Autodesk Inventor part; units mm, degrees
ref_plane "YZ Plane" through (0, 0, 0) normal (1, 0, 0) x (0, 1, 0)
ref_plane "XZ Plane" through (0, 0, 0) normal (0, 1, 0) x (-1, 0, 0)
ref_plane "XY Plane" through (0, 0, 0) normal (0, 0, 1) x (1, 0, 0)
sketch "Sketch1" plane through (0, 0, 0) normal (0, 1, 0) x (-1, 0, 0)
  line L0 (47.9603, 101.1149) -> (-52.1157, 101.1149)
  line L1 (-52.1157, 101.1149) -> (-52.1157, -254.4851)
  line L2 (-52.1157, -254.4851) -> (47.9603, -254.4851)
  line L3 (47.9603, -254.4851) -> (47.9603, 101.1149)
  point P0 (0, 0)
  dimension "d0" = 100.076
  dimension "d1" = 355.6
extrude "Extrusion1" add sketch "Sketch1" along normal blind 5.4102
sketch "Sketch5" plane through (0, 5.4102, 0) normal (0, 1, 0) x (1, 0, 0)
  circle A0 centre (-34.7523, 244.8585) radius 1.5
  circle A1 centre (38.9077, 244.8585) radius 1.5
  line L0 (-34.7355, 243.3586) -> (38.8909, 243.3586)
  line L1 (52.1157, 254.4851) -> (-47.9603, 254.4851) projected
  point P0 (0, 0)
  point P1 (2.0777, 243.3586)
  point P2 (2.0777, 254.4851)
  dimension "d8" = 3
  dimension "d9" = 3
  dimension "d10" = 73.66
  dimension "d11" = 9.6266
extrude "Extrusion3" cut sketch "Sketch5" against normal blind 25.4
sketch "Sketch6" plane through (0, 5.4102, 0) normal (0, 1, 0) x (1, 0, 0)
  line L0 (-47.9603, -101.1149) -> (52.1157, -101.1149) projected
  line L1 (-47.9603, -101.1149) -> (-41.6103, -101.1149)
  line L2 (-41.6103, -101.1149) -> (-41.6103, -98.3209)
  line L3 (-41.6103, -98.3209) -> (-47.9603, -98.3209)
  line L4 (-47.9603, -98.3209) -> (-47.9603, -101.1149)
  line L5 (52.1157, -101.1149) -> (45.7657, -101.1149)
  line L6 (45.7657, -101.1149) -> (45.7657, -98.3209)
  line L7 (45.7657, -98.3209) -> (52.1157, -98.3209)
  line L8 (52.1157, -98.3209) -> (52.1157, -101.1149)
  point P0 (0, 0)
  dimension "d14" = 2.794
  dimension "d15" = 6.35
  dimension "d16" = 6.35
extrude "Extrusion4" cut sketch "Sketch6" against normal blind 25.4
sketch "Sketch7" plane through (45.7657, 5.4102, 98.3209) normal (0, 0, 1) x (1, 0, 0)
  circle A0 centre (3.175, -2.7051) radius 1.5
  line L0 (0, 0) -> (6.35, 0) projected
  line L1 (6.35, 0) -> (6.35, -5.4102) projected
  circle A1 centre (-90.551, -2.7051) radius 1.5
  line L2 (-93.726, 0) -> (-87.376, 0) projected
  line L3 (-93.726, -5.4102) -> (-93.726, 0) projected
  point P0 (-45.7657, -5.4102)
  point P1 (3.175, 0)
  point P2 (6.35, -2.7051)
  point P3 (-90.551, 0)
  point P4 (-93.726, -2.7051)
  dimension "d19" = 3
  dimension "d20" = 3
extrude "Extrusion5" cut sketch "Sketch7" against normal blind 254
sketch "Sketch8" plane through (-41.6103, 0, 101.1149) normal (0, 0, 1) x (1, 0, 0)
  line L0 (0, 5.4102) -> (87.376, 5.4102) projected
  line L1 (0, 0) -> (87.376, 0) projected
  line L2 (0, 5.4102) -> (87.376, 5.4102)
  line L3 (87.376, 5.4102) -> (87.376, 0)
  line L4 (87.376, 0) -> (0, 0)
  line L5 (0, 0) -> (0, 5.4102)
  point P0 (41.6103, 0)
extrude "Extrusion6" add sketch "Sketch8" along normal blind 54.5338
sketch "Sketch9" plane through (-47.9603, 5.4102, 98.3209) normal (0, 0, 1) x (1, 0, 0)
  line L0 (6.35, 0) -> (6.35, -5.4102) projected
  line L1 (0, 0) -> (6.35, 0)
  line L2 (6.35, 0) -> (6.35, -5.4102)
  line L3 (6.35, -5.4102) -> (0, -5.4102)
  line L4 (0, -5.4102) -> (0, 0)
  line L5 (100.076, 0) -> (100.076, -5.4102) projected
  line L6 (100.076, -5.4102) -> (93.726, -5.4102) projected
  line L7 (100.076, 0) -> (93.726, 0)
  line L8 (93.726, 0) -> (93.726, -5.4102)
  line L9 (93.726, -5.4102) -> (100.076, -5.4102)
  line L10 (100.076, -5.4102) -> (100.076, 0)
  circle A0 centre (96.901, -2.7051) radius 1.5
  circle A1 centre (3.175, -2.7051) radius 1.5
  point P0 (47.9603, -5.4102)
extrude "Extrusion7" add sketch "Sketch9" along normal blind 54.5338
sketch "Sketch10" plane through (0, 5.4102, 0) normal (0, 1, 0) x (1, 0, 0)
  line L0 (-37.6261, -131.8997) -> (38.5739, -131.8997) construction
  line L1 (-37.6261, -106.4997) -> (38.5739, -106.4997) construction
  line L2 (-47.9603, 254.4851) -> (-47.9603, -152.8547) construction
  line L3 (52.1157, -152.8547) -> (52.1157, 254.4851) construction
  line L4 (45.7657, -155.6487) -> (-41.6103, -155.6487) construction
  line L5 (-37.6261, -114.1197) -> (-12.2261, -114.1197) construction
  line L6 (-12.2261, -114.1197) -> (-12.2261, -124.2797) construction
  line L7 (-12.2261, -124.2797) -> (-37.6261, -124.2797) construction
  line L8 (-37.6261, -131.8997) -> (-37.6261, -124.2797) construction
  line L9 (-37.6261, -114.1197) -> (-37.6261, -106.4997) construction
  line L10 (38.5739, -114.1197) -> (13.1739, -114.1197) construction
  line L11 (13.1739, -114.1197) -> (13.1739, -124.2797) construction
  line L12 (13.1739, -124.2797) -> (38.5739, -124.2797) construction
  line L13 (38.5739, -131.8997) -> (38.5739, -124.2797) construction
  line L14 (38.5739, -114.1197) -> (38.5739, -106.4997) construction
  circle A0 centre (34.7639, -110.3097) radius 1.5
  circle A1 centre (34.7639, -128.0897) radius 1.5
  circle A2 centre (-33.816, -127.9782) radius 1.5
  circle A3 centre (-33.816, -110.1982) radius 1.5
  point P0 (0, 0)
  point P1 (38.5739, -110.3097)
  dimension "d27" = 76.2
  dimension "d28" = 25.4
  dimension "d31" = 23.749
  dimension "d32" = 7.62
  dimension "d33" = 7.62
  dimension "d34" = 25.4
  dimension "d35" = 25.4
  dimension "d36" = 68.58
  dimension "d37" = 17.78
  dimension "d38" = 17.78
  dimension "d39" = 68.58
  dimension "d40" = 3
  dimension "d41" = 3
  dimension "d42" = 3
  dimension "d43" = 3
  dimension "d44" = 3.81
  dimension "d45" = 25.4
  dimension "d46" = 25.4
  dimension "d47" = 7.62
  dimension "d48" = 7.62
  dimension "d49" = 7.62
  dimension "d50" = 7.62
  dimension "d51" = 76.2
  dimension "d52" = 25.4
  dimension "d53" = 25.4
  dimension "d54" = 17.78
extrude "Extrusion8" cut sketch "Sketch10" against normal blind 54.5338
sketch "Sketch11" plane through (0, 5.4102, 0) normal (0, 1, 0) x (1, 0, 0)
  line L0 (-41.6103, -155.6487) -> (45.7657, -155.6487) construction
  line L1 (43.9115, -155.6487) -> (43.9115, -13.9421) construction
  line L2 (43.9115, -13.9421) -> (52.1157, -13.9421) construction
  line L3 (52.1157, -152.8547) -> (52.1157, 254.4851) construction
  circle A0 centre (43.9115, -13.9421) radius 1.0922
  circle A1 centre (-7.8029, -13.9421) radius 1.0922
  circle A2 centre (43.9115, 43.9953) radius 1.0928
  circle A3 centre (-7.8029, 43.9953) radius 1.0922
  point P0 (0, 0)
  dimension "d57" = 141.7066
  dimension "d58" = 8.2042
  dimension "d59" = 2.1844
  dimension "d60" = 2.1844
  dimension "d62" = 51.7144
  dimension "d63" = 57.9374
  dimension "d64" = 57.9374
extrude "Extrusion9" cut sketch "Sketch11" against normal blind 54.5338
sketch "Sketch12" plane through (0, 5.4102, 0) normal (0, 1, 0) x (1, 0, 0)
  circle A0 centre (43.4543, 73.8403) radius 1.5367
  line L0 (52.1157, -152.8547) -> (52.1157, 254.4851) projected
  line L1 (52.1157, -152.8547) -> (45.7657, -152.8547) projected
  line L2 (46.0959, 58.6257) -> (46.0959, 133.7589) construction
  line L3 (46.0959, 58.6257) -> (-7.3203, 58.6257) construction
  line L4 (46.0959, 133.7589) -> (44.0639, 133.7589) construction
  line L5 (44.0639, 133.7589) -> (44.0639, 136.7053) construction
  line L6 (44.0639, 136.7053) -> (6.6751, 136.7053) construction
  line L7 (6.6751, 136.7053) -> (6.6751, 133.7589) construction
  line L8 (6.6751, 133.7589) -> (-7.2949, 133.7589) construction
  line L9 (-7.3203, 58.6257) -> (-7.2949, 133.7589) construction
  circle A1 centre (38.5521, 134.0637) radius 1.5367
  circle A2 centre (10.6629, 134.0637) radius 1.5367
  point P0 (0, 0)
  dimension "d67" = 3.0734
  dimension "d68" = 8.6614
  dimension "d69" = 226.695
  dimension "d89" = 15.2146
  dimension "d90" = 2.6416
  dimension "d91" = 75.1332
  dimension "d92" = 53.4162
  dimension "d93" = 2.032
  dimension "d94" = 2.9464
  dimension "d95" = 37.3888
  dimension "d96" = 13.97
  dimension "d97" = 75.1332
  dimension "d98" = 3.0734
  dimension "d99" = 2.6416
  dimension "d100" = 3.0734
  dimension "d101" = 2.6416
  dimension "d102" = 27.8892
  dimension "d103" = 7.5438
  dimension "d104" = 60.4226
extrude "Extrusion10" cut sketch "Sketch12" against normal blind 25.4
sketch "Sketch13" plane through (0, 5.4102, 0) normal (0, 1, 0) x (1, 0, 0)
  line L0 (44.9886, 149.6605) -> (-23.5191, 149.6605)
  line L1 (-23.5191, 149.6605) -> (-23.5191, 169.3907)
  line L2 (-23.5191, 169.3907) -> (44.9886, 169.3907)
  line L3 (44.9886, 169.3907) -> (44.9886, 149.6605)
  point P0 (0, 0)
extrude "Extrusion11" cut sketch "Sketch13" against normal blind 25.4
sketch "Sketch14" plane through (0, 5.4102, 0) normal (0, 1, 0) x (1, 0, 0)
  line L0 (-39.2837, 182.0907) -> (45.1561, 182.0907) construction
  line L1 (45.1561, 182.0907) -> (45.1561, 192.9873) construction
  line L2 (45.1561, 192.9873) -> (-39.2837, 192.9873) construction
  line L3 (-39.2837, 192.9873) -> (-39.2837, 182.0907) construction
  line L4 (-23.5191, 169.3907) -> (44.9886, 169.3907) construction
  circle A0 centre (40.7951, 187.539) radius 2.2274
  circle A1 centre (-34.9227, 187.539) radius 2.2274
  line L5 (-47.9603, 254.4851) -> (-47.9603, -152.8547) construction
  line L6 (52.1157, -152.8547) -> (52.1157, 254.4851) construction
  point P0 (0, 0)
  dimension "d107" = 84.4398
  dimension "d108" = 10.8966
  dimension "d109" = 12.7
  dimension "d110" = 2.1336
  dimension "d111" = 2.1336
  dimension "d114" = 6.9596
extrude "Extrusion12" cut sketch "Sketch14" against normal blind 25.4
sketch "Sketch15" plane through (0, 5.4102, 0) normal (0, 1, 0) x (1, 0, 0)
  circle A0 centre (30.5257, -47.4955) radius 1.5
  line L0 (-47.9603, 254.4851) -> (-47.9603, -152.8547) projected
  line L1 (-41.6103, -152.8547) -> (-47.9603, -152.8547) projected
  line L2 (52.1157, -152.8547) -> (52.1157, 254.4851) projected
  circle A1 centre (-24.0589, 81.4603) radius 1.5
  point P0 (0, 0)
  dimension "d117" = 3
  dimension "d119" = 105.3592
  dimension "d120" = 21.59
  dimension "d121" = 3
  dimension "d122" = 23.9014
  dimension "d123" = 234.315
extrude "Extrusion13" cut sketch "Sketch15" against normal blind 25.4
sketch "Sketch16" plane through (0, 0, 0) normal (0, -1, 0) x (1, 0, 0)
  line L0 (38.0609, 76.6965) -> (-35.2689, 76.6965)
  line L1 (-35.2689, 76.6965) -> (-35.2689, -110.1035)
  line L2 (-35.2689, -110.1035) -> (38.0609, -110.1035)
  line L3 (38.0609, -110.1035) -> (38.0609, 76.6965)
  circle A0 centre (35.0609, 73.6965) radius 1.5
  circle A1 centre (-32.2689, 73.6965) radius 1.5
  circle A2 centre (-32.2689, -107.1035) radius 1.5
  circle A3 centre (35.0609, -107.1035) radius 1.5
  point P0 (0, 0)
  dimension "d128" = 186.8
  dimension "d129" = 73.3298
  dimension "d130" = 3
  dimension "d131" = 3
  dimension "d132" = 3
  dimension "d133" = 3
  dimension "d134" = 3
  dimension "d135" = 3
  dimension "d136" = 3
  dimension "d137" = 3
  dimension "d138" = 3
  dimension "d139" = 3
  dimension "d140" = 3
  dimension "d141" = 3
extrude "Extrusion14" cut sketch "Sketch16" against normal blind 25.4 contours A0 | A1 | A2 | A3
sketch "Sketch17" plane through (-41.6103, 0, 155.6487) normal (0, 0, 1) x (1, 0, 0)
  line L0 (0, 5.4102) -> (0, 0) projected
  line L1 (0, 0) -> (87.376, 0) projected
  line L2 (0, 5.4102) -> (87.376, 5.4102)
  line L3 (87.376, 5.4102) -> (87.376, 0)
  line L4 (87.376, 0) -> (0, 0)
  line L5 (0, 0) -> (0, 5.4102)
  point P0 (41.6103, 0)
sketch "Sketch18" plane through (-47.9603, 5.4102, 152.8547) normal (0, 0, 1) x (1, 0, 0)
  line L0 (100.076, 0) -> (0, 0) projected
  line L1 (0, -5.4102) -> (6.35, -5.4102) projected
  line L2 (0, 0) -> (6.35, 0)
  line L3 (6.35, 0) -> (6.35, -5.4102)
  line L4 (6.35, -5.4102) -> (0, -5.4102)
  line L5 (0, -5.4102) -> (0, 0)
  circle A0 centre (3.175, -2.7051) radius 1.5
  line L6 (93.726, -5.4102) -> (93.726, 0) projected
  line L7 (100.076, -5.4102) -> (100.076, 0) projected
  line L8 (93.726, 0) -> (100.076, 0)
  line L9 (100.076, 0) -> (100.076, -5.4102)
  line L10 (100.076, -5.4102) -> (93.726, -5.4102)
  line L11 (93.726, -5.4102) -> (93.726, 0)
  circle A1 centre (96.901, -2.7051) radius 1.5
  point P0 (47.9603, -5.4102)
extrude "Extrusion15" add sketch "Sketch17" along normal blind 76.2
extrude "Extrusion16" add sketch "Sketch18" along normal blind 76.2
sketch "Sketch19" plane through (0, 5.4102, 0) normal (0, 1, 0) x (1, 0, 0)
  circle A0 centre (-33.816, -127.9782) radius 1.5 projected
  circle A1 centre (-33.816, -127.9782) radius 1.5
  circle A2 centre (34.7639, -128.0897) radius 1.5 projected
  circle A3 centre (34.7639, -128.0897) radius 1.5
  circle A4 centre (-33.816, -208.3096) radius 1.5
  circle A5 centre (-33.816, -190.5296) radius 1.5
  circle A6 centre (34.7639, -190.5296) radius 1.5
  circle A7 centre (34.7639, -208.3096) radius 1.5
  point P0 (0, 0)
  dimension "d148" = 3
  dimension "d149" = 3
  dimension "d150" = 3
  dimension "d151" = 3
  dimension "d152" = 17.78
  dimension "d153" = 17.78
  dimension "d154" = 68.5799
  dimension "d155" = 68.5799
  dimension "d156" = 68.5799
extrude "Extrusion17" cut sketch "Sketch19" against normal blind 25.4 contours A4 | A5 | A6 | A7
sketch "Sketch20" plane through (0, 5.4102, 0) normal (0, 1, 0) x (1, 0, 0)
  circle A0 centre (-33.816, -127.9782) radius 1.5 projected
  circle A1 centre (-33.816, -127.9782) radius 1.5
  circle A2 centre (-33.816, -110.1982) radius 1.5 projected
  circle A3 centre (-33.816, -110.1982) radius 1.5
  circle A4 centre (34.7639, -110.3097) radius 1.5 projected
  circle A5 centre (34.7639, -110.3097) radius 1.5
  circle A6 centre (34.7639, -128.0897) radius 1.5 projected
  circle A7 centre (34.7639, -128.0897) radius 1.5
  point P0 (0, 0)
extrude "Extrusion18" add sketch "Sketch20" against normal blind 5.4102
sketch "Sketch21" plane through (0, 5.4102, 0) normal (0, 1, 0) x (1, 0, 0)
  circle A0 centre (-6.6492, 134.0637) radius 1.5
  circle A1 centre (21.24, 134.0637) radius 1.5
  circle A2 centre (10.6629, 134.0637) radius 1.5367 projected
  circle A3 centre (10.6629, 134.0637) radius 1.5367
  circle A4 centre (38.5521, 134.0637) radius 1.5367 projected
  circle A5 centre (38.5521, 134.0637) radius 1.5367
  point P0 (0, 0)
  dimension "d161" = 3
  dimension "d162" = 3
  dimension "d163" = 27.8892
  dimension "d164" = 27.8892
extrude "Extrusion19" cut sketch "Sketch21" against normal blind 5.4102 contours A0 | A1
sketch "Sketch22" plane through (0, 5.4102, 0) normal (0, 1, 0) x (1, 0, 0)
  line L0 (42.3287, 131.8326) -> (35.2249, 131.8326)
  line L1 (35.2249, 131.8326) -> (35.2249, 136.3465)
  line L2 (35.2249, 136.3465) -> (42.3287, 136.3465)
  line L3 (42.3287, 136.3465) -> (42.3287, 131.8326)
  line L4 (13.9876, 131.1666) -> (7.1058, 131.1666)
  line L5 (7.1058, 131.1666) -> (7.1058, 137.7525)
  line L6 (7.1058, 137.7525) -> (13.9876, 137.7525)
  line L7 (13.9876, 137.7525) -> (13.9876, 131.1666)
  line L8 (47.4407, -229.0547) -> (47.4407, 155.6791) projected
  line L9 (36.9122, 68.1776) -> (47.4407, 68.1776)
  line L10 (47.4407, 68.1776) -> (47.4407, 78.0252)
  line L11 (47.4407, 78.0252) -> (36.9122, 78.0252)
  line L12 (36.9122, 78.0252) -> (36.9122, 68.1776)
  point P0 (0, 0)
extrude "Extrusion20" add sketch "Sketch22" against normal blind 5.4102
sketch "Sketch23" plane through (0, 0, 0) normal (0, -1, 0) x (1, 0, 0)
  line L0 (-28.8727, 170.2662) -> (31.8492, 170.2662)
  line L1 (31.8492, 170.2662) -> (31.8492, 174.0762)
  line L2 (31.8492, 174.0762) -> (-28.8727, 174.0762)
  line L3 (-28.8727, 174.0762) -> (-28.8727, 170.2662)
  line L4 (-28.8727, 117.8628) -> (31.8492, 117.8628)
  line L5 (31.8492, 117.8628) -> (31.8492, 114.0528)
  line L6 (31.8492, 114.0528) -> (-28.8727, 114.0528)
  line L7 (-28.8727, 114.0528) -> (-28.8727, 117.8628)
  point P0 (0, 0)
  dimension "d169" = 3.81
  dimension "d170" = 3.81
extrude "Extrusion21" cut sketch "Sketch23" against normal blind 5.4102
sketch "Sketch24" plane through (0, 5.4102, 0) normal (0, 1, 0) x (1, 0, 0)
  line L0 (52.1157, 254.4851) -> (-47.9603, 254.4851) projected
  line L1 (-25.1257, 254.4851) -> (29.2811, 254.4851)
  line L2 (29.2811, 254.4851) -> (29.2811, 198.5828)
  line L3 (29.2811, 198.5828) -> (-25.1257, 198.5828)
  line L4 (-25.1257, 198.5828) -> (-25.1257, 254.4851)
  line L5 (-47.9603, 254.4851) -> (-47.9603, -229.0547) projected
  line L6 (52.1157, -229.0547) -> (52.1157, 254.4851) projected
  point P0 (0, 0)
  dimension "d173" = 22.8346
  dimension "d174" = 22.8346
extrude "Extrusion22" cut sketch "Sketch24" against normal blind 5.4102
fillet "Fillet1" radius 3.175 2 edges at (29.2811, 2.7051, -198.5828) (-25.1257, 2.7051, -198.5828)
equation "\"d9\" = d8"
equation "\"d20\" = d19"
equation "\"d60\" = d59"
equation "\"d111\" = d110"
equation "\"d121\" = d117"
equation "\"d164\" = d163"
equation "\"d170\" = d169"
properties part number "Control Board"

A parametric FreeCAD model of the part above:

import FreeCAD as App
import Part
import Sketcher

V = App.Vector
Q = App.Units.Quantity


def edges_at(feature, points):
    """Names of the edges that pass closest to the given points."""
    edges = feature.Shape.Edges
    near = lambda p: min(range(len(edges)), key=lambda i: edges[i].distToShape(Part.Vertex(*p))[0])
    return sorted({f"Edge{near(p) + 1}" for p in points})

doc = App.newDocument("Part")
body = doc.addObject("PartDesign::Body", "Body")

# Sketch on XZ plane
sketch1 = body.newObject("Sketcher::SketchObject", "Sketch")
sketch1.AttachmentSupport = (doc.getObject("XZ_Plane"), [""])
sketch1.MapMode = "FlatFace"
sketch1.addGeometry(Part.LineSegment(V(-48, -254, 0), V(-48, 101, 0)), False)
sketch1.addGeometry(Part.LineSegment(V(-48, 101, 0), V(52, 101, 0)), False)
sketch1.addGeometry(Part.LineSegment(V(52, 101, 0), V(52, -254, 0)), False)
sketch1.addGeometry(Part.LineSegment(V(52, -254, 0), V(-48, -254, 0)), False)
sketch1.addConstraint(Sketcher.Constraint("Coincident", 0, 2, 1, 1))
sketch1.addConstraint(Sketcher.Constraint("Coincident", 1, 2, 2, 1))
sketch1.addConstraint(Sketcher.Constraint("Coincident", 2, 2, 3, 1))
sketch1.addConstraint(Sketcher.Constraint("Coincident", 3, 2, 0, 1))
sketch1.addConstraint(Sketcher.Constraint("Vertical", 0))
sketch1.addConstraint(Sketcher.Constraint("Horizontal", 1))
sketch1.addConstraint(Sketcher.Constraint("Vertical", 2))
sketch1.addConstraint(Sketcher.Constraint("Horizontal", 3))
sketch1.addConstraint(Sketcher.Constraint("DistanceY", 0, 1, 0, 2, Q("14 in")))
sketch1.addConstraint(Sketcher.Constraint("DistanceX", 1, 1, 1, 2, Q("3.94 in")))
sketch1.addConstraint(Sketcher.Constraint("DistanceX", 0, 2, -1, 1, Q("1.8882 in")))
sketch1.addConstraint(Sketcher.Constraint("DistanceY", -1, 1, 0, 2, Q("3.9809 in")))
pad1 = body.newObject("PartDesign::Pad", "Pad")
pad1.Profile = sketch1
pad1.Length = Q("0.213 in")
pad1.Reversed = True

# Sketch on XZ plane
sketch2 = body.newObject("Sketcher::SketchObject", "Sketch001")
sketch2.AttachmentSupport = (doc.getObject("XZ_Plane"), [""])
sketch2.MapMode = "FlatFace"
sketch2.AttachmentOffset = App.Placement(V(0, 0, -0.213 * 25.4), App.Rotation())
sketch2.addGeometry(Part.Circle(V(-34.8, -244.9, 0), V(0, 0, 1), 1.5), False)
sketch2.addGeometry(Part.Circle(V(38.9, -244.9, 0), V(0, 0, 1), 1.5), False)
sketch2.addConstraint(Sketcher.Constraint("Equal", 0, 1))
sketch2.addConstraint(Sketcher.Constraint("Horizontal", 0, 3, 1, 3))
sketch2.addConstraint(Sketcher.Constraint("Diameter", 0, Q("0.1181 in")))
sketch2.addConstraint(Sketcher.Constraint("DistanceX", 0, 3, 1, 3, Q("2.9 in")))
sketch2.addConstraint(Sketcher.Constraint("DistanceX", 0, 3, -1, 1, Q("1.3682 in")))
sketch2.addConstraint(Sketcher.Constraint("DistanceY", 0, 3, -1, 1, Q("9.6401 in")))
pocket1 = body.newObject("PartDesign::Pocket", "Pocket")
pocket1.Profile = sketch2
pocket1.Length = Q("1 in")
pocket1.Reversed = True

# Sketch on XZ plane
sketch3 = body.newObject("Sketcher::SketchObject", "Sketch002")
sketch3.AttachmentSupport = (doc.getObject("XZ_Plane"), [""])
sketch3.MapMode = "FlatFace"
sketch3.AttachmentOffset = App.Placement(V(0, 0, -0.213 * 25.4), App.Rotation())
sketch3.addGeometry(Part.LineSegment(V(-48, 98.3, 0), V(-48, 101.1, 0)), False)
sketch3.addGeometry(Part.LineSegment(V(-48, 101.1, 0), V(-41.6, 101.1, 0)), False)
sketch3.addGeometry(Part.LineSegment(V(-41.6, 101.1, 0), V(-41.6, 98.3, 0)), False)
sketch3.addGeometry(Part.LineSegment(V(-41.6, 98.3, 0), V(-48, 98.3, 0)), False)
sketch3.addGeometry(Part.LineSegment(V(45.8, 98.3, 0), V(45.8, 101.1, 0)), False)
sketch3.addGeometry(Part.LineSegment(V(45.8, 101.1, 0), V(52.1, 101.1, 0)), False)
sketch3.addGeometry(Part.LineSegment(V(52.1, 101.1, 0), V(52.1, 98.3, 0)), False)
sketch3.addGeometry(Part.LineSegment(V(52.1, 98.3, 0), V(45.8, 98.3, 0)), False)
sketch3.addConstraint(Sketcher.Constraint("Coincident", 0, 2, 1, 1))
sketch3.addConstraint(Sketcher.Constraint("Coincident", 1, 2, 2, 1))
sketch3.addConstraint(Sketcher.Constraint("Coincident", 2, 2, 3, 1))
sketch3.addConstraint(Sketcher.Constraint("Coincident", 3, 2, 0, 1))
sketch3.addConstraint(Sketcher.Constraint("Coincident", 4, 2, 5, 1))
sketch3.addConstraint(Sketcher.Constraint("Coincident", 5, 2, 6, 1))
sketch3.addConstraint(Sketcher.Constraint("Coincident", 6, 2, 7, 1))
sketch3.addConstraint(Sketcher.Constraint("Coincident", 7, 2, 4, 1))
sketch3.addConstraint(Sketcher.Constraint("Vertical", 0))
sketch3.addConstraint(Sketcher.Constraint("Horizontal", 1))
sketch3.addConstraint(Sketcher.Constraint("Vertical", 2))
sketch3.addConstraint(Sketcher.Constraint("Horizontal", 3))
sketch3.addConstraint(Sketcher.Constraint("Vertical", 4))
sketch3.addConstraint(Sketcher.Constraint("Horizontal", 5))
sketch3.addConstraint(Sketcher.Constraint("Vertical", 6))
sketch3.addConstraint(Sketcher.Constraint("Horizontal", 7))
sketch3.addConstraint(Sketcher.Constraint("Horizontal", 1, 2, 4, 2))
sketch3.addConstraint(Sketcher.Constraint("Horizontal", 3, 2, 6, 2))
sketch3.addConstraint(Sketcher.Constraint("Equal", 3, 5))
sketch3.addConstraint(Sketcher.Constraint("DistanceX", 1, 1, 1, 2, Q("0.25 in")))
sketch3.addConstraint(Sketcher.Constraint("DistanceY", 0, 1, 0, 2, Q("0.11 in")))
sketch3.addConstraint(Sketcher.Constraint("DistanceX", 1, 2, 4, 2, Q("3.44 in")))
sketch3.addConstraint(Sketcher.Constraint("DistanceX", 0, 2, -1, 1, Q("1.8882 in")))
sketch3.addConstraint(Sketcher.Constraint("DistanceY", -1, 1, 0, 2, Q("3.9809 in")))
pocket2 = body.newObject("PartDesign::Pocket", "Pocket001")
pocket2.Profile = sketch3
pocket2.Length = Q("1 in")
pocket2.Reversed = True

# Sketch on XY plane
sketch4 = body.newObject("Sketcher::SketchObject", "Sketch003")
sketch4.AttachmentSupport = (doc.getObject("XY_Plane"), [""])
sketch4.MapMode = "FlatFace"
sketch4.AttachmentOffset = App.Placement(V(0, 0, 3.8709016 * 25.4), App.Rotation())
sketch4.addGeometry(Part.Circle(V(48.9, 2.7, 0), V(0, 0, 1), 1.5), False)
sketch4.addGeometry(Part.Circle(V(-44.8, 2.7, 0), V(0, 0, 1), 1.5), False)
sketch4.addConstraint(Sketcher.Constraint("Equal", 0, 1))
sketch4.addConstraint(Sketcher.Constraint("Horizontal", 0, 3, 1, 3))
sketch4.addConstraint(Sketcher.Constraint("Diameter", 0, Q("0.1181 in")))
sketch4.addConstraint(Sketcher.Constraint("DistanceX", 1, 3, 0, 3, Q("3.69 in")))
sketch4.addConstraint(Sketcher.Constraint("DistanceX", -1, 1, 0, 3, Q("1.9268 in")))
sketch4.addConstraint(Sketcher.Constraint("DistanceY", -1, 1, 0, 3, Q("0.1065 in")))
pocket3 = body.newObject("PartDesign::Pocket", "Pocket002")
pocket3.Profile = sketch4
pocket3.Length = Q("10 in")

# Sketch on XY plane
sketch5 = body.newObject("Sketcher::SketchObject", "Sketch004")
sketch5.AttachmentSupport = (doc.getObject("XY_Plane"), [""])
sketch5.MapMode = "FlatFace"
sketch5.AttachmentOffset = App.Placement(V(0, 0, 3.9809016 * 25.4), App.Rotation())
sketch5.addGeometry(Part.LineSegment(V(46, 5, 0), V(-42, 5, 0)), False)
sketch5.addGeometry(Part.LineSegment(V(-42, 5, 0), V(-42, 0, 0)), False)
sketch5.addGeometry(Part.LineSegment(V(-42, 0, 0), V(46, 0, 0)), False)
sketch5.addGeometry(Part.LineSegment(V(46, 0, 0), V(46, 5, 0)), False)
sketch5.addConstraint(Sketcher.Constraint("Coincident", 0, 2, 1, 1))
sketch5.addConstraint(Sketcher.Constraint("Coincident", 1, 2, 2, 1))
sketch5.addConstraint(Sketcher.Constraint("Coincident", 2, 2, 3, 1))
sketch5.addConstraint(Sketcher.Constraint("Coincident", 3, 2, 0, 1))
sketch5.addConstraint(Sketcher.Constraint("Horizontal", 0))
sketch5.addConstraint(Sketcher.Constraint("Vertical", 1))
sketch5.addConstraint(Sketcher.Constraint("Horizontal", 2))
sketch5.addConstraint(Sketcher.Constraint("Vertical", 3))
sketch5.addConstraint(Sketcher.Constraint("PointOnObject", 1, 2, -1))
sketch5.addConstraint(Sketcher.Constraint("DistanceX", 0, 2, 0, 1, Q("3.44 in")))
sketch5.addConstraint(Sketcher.Constraint("DistanceY", 1, 2, 1, 1, Q("0.213 in")))
sketch5.addConstraint(Sketcher.Constraint("DistanceX", 0, 2, -1, 1, Q("1.6382 in")))
pad2 = body.newObject("PartDesign::Pad", "Pad001")
pad2.Profile = sketch5
pad2.Length = Q("2.147 in")

# Sketch on XY plane
sketch6 = body.newObject("Sketcher::SketchObject", "Sketch005")
sketch6.AttachmentSupport = (doc.getObject("XY_Plane"), [""])
sketch6.MapMode = "FlatFace"
sketch6.AttachmentOffset = App.Placement(V(0, 0, 3.8709016 * 25.4), App.Rotation())
sketch6.addGeometry(Part.LineSegment(V(-41.6, 0, 0), V(-41.6, 5.4, 0)), False)
sketch6.addGeometry(Part.LineSegment(V(-41.6, 5.4, 0), V(-48, 5.4, 0)), False)
sketch6.addGeometry(Part.LineSegment(V(-48, 5.4, 0), V(-48, 0, 0)), False)
sketch6.addGeometry(Part.LineSegment(V(-48, 0, 0), V(-41.6, 0, 0)), False)
sketch6.addGeometry(Part.Circle(V(-44.8, 2.7, 0), V(0, 0, 1), 1.5), False)
sketch6.addGeometry(Part.LineSegment(V(52.1, 0, 0), V(52.1, 5.4, 0)), False)
sketch6.addGeometry(Part.LineSegment(V(52.1, 5.4, 0), V(45.8, 5.4, 0)), False)
sketch6.addGeometry(Part.LineSegment(V(45.8, 5.4, 0), V(45.8, 0, 0)), False)
sketch6.addGeometry(Part.LineSegment(V(45.8, 0, 0), V(52.1, 0, 0)), False)
sketch6.addGeometry(Part.Circle(V(48.9, 2.7, 0), V(0, 0, 1), 1.5), False)
sketch6.addConstraint(Sketcher.Constraint("Coincident", 0, 2, 1, 1))
sketch6.addConstraint(Sketcher.Constraint("Coincident", 1, 2, 2, 1))
sketch6.addConstraint(Sketcher.Constraint("Coincident", 2, 2, 3, 1))
sketch6.addConstraint(Sketcher.Constraint("Coincident", 3, 2, 0, 1))
sketch6.addConstraint(Sketcher.Constraint("Coincident", 5, 2, 6, 1))
sketch6.addConstraint(Sketcher.Constraint("Coincident", 6, 2, 7, 1))
sketch6.addConstraint(Sketcher.Constraint("Coincident", 7, 2, 8, 1))
sketch6.addConstraint(Sketcher.Constraint("Coincident", 8, 2, 5, 1))
sketch6.addConstraint(Sketcher.Constraint("Vertical", 0))
sketch6.addConstraint(Sketcher.Constraint("Horizontal", 1))
sketch6.addConstraint(Sketcher.Constraint("Vertical", 2))
sketch6.addConstraint(Sketcher.Constraint("Horizontal", 3))
sketch6.addConstraint(Sketcher.Constraint("Vertical", 5))
sketch6.addConstraint(Sketcher.Constraint("Horizontal", 6))
sketch6.addConstraint(Sketcher.Constraint("Vertical", 7))
sketch6.addConstraint(Sketcher.Constraint("Horizontal", 8))
sketch6.addConstraint(Sketcher.Constraint("Equal", 4, 9))
sketch6.addConstraint(Sketcher.Constraint("PointOnObject", 2, 2, -1))
sketch6.addConstraint(Sketcher.Constraint("PointOnObject", 7, 2, -1))
sketch6.addConstraint(Sketcher.Constraint("Horizontal", 4, 3, 9, 3))
sketch6.addConstraint(Sketcher.Constraint("Horizontal", 1, 2, 5, 2))
sketch6.addConstraint(Sketcher.Constraint("Equal", 3, 6))
sketch6.addConstraint(Sketcher.Constraint("Diameter", 4, Q("0.1181 in")))
sketch6.addConstraint(Sketcher.Constraint("DistanceX", 1, 2, 1, 1, Q("0.25 in")))
sketch6.addConstraint(Sketcher.Constraint("DistanceY", 0, 1, 0, 2, Q("0.213 in")))
sketch6.addConstraint(Sketcher.Constraint("DistanceX", 4, 3, 9, 3, Q("3.69 in")))
sketch6.addConstraint(Sketcher.Constraint("DistanceX", 0, 2, 5, 2, Q("3.69 in")))
sketch6.addConstraint(Sketcher.Constraint("DistanceX", 4, 3, 0, 2, Q("0.125 in")))
sketch6.addConstraint(Sketcher.Constraint("DistanceX", 4, 3, -1, 1, Q("1.7632 in")))
sketch6.addConstraint(Sketcher.Constraint("DistanceY", -1, 1, 4, 3, Q("0.1065 in")))
pad3 = body.newObject("PartDesign::Pad", "Pad002")
pad3.Profile = sketch6
pad3.Length = Q("2.147 in")

# Sketch on XZ plane
sketch7 = body.newObject("Sketcher::SketchObject", "Sketch006")
sketch7.AttachmentSupport = (doc.getObject("XZ_Plane"), [""])
sketch7.MapMode = "FlatFace"
sketch7.AttachmentOffset = App.Placement(V(0, 0, -0.213 * 25.4), App.Rotation())
sketch7.addGeometry(Part.Circle(V(34.8, 110.3, 0), V(0, 0, 1), 1.5), False)
sketch7.addGeometry(Part.Circle(V(34.8, 128.1, 0), V(0, 0, 1), 1.5), False)
sketch7.addGeometry(Part.Circle(V(-33.8, 128, 0), V(0, 0, 1), 1.5), False)
sketch7.addGeometry(Part.Circle(V(-33.8, 110.2, 0), V(0, 0, 1), 1.5), False)
sketch7.addConstraint(Sketcher.Constraint("Equal", 0, 1))
sketch7.addConstraint(Sketcher.Constraint("Equal", 1, 2))
sketch7.addConstraint(Sketcher.Constraint("Equal", 2, 3))
sketch7.addConstraint(Sketcher.Constraint("Vertical", 0, 3, 1, 3))
sketch7.addConstraint(Sketcher.Constraint("Vertical", 2, 3, 3, 3))
sketch7.addConstraint(Sketcher.Constraint("Diameter", 0, Q("0.1181 in")))
sketch7.addConstraint(Sketcher.Constraint("DistanceY", 0, 3, 1, 3, Q("0.7 in")))
sketch7.addConstraint(Sketcher.Constraint("DistanceX", 2, 3, 1, 3, Q("2.7 in")))
sketch7.addConstraint(Sketcher.Constraint("DistanceY", 3, 3, 2, 3, Q("0.7 in")))
sketch7.addConstraint(Sketcher.Constraint("DistanceY", -1, 1, 0, 3, Q("4.3429 in")))
sketch7.addConstraint(Sketcher.Constraint("DistanceY", -1, 1, 2, 3, Q("5.0385 in")))
sketch7.addConstraint(Sketcher.Constraint("DistanceX", -1, 1, 0, 3, 34.764))
pocket4 = body.newObject("PartDesign::Pocket", "Pocket003")
pocket4.Profile = sketch7
pocket4.Length = Q("2.147 in")
pocket4.Reversed = True

# Sketch on XZ plane
sketch8 = body.newObject("Sketcher::SketchObject", "Sketch007")
sketch8.AttachmentSupport = (doc.getObject("XZ_Plane"), [""])
sketch8.MapMode = "FlatFace"
sketch8.AttachmentOffset = App.Placement(V(0, 0, -0.213 * 25.4), App.Rotation())
sketch8.addGeometry(Part.Circle(V(43.9, 13.9, 0), V(0, 0, 1), 1.1), False)
sketch8.addGeometry(Part.Circle(V(-7.8, 13.9, 0), V(0, 0, 1), 1.1), False)
sketch8.addGeometry(Part.Circle(V(43.9, -44, 0), V(0, 0, 1), 1.1), False)
sketch8.addGeometry(Part.Circle(V(-7.8, -44, 0), V(0, 0, 1), 1.1), False)
sketch8.addConstraint(Sketcher.Constraint("Equal", 0, 1))
sketch8.addConstraint(Sketcher.Constraint("Equal", 1, 3))
sketch8.addConstraint(Sketcher.Constraint("Horizontal", 0, 3, 1, 3))
sketch8.addConstraint(Sketcher.Constraint("Horizontal", 2, 3, 3, 3))
sketch8.addConstraint(Sketcher.Constraint("Vertical", 0, 3, 2, 3))
sketch8.addConstraint(Sketcher.Constraint("Vertical", 1, 3, 3, 3))
sketch8.addConstraint(Sketcher.Constraint("Diameter", 0, Q("0.086 in")))
sketch8.addConstraint(Sketcher.Constraint("DistanceX", 1, 3, 0, 3, Q("2.036 in")))
sketch8.addConstraint(Sketcher.Constraint("DistanceY", 2, 3, 0, 3, Q("2.281 in")))
sketch8.addConstraint(Sketcher.Constraint("Diameter", 2, 2.1856))
sketch8.addConstraint(Sketcher.Constraint("DistanceX", -1, 1, 0, 3, Q("1.7288 in")))
sketch8.addConstraint(Sketcher.Constraint("DistanceY", -1, 1, 0, 3, Q("0.5489 in")))
pocket5 = body.newObject("PartDesign::Pocket", "Pocket004")
pocket5.Profile = sketch8
pocket5.Length = Q("2.147 in")
pocket5.Reversed = True

# Sketch on XZ plane
sketch9 = body.newObject("Sketcher::SketchObject", "Sketch008")
sketch9.AttachmentSupport = (doc.getObject("XZ_Plane"), [""])
sketch9.MapMode = "FlatFace"
sketch9.AttachmentOffset = App.Placement(V(0, 0, -0.213 * 25.4), App.Rotation())
sketch9.addGeometry(Part.Circle(V(43.5, -73.8, 0), V(0, 0, 1), 1.5), False)
sketch9.addGeometry(Part.Circle(V(38.6, -134.1, 0), V(0, 0, 1), 1.5), False)
sketch9.addGeometry(Part.Circle(V(10.7, -134.1, 0), V(0, 0, 1), 1.5), False)
sketch9.addConstraint(Sketcher.Constraint("Equal", 0, 1))
sketch9.addConstraint(Sketcher.Constraint("Equal", 1, 2))
sketch9.addConstraint(Sketcher.Constraint("Horizontal", 1, 3, 2, 3))
sketch9.addConstraint(Sketcher.Constraint("Diameter", 0, Q("0.121 in")))
sketch9.addConstraint(Sketcher.Constraint("DistanceX", 2, 3, 1, 3, Q("1.098 in")))
sketch9.addConstraint(Sketcher.Constraint("DistanceX", 1, 3, 0, 3, Q("0.193 in")))
sketch9.addConstraint(Sketcher.Constraint("DistanceY", 1, 3, 0, 3, Q("2.371 in")))
sketch9.addConstraint(Sketcher.Constraint("DistanceX", -1, 1, 0, 3, Q("1.7108 in")))
sketch9.addConstraint(Sketcher.Constraint("DistanceY", 0, 3, -1, 1, Q("2.9071 in")))
pocket6 = body.newObject("PartDesign::Pocket", "Pocket005")
pocket6.Profile = sketch9
pocket6.Length = Q("1 in")
pocket6.Reversed = True

# Sketch on XZ plane
sketch10 = body.newObject("Sketcher::SketchObject", "Sketch009")
sketch10.AttachmentSupport = (doc.getObject("XZ_Plane"), [""])
sketch10.MapMode = "FlatFace"
sketch10.AttachmentOffset = App.Placement(V(0, 0, -0.213 * 25.4), App.Rotation())
sketch10.addGeometry(Part.LineSegment(V(-24, -150, 0), V(45, -150, 0)), False)
sketch10.addGeometry(Part.LineSegment(V(45, -150, 0), V(45, -169, 0)), False)
sketch10.addGeometry(Part.LineSegment(V(45, -169, 0), V(-24, -169, 0)), False)
sketch10.addGeometry(Part.LineSegment(V(-24, -169, 0), V(-24, -150, 0)), False)
sketch10.addConstraint(Sketcher.Constraint("Coincident", 0, 2, 1, 1))
sketch10.addConstraint(Sketcher.Constraint("Coincident", 1, 2, 2, 1))
sketch10.addConstraint(Sketcher.Constraint("Coincident", 2, 2, 3, 1))
sketch10.addConstraint(Sketcher.Constraint("Coincident", 3, 2, 0, 1))
sketch10.addConstraint(Sketcher.Constraint("Horizontal", 0))
sketch10.addConstraint(Sketcher.Constraint("Vertical", 1))
sketch10.addConstraint(Sketcher.Constraint("Horizontal", 2))
sketch10.addConstraint(Sketcher.Constraint("Vertical", 3))
sketch10.addConstraint(Sketcher.Constraint("DistanceX", 0, 1, 0, 2, 68.5077))
sketch10.addConstraint(Sketcher.Constraint("DistanceY", 1, 2, 1, 1, 19.7302))
sketch10.addConstraint(Sketcher.Constraint("DistanceX", -1, 1, 0, 2, Q("1.7712 in")))
sketch10.addConstraint(Sketcher.Constraint("DistanceY", 0, 2, -1, 1, 149.6605))
pocket7 = body.newObject("PartDesign::Pocket", "Pocket006")
pocket7.Profile = sketch10
pocket7.Length = Q("1 in")
pocket7.Reversed = True

# Sketch on XZ plane
sketch11 = body.newObject("Sketcher::SketchObject", "Sketch010")
sketch11.AttachmentSupport = (doc.getObject("XZ_Plane"), [""])
sketch11.MapMode = "FlatFace"
sketch11.AttachmentOffset = App.Placement(V(0, 0, -0.213 * 25.4), App.Rotation())
sketch11.addGeometry(Part.Circle(V(40.8, -187.5, 0), V(0, 0, 1), 2.2), False)
sketch11.addGeometry(Part.Circle(V(-34.9, -187.5, 0), V(0, 0, 1), 2.2), False)
sketch11.addConstraint(Sketcher.Constraint("Equal", 0, 1))
sketch11.addConstraint(Sketcher.Constraint("Horizontal", 0, 3, 1, 3))
sketch11.addConstraint(Sketcher.Constraint("Diameter", 0, 4.4548))
sketch11.addConstraint(Sketcher.Constraint("DistanceX", -1, 1, 0, 3, Q("1.6061 in")))
sketch11.addConstraint(Sketcher.Constraint("DistanceX", 1, 3, -1, 1, Q("1.3749 in")))
sketch11.addConstraint(Sketcher.Constraint("DistanceY", 0, 3, -1, 1, 187.539))
pocket8 = body.newObject("PartDesign::Pocket", "Pocket007")
pocket8.Profile = sketch11
pocket8.Length = Q("1 in")
pocket8.Reversed = True

# Sketch on XZ plane
sketch12 = body.newObject("Sketcher::SketchObject", "Sketch011")
sketch12.AttachmentSupport = (doc.getObject("XZ_Plane"), [""])
sketch12.MapMode = "FlatFace"
sketch12.AttachmentOffset = App.Placement(V(0, 0, -0.213 * 25.4), App.Rotation())
sketch12.addGeometry(Part.Circle(V(30.5, 47.5, 0), V(0, 0, 1), 1.5), False)
sketch12.addGeometry(Part.Circle(V(-24.1, -81.5, 0), V(0, 0, 1), 1.5), False)
sketch12.addConstraint(Sketcher.Constraint("Equal", 0, 1))
sketch12.addConstraint(Sketcher.Constraint("Diameter", 0, Q("0.1181 in")))
sketch12.addConstraint(Sketcher.Constraint("DistanceX", 1, 3, 0, 3, Q("2.149 in")))
sketch12.addConstraint(Sketcher.Constraint("DistanceY", 1, 3, 0, 3, Q("5.077 in")))
sketch12.addConstraint(Sketcher.Constraint("DistanceX", -1, 1, 0, 3, Q("1.2018 in")))
sketch12.addConstraint(Sketcher.Constraint("DistanceY", -1, 1, 0, 3, Q("1.8699 in")))
pocket9 = body.newObject("PartDesign::Pocket", "Pocket008")
pocket9.Profile = sketch12
pocket9.Length = Q("1 in")
pocket9.Reversed = True

# Sketch on XZ plane
sketch13 = body.newObject("Sketcher::SketchObject", "Sketch012")
sketch13.AttachmentSupport = (doc.getObject("XZ_Plane"), [""])
sketch13.MapMode = "FlatFace"
sketch13.addGeometry(Part.Circle(V(35.1, 73.7, 0), V(0, 0, 1), 1.5), False)
sketch13.addGeometry(Part.Circle(V(-32.3, 73.7, 0), V(0, 0, 1), 1.5), False)
sketch13.addGeometry(Part.Circle(V(-32.3, -107.1, 0), V(0, 0, 1), 1.5), False)
sketch13.addGeometry(Part.Circle(V(35.1, -107.1, 0), V(0, 0, 1), 1.5), False)
sketch13.addConstraint(Sketcher.Constraint("Equal", 0, 1))
sketch13.addConstraint(Sketcher.Constraint("Equal", 1, 2))
sketch13.addConstraint(Sketcher.Constraint("Equal", 2, 3))
sketch13.addConstraint(Sketcher.Constraint("Horizontal", 0, 3, 1, 3))
sketch13.addConstraint(Sketcher.Constraint("Horizontal", 2, 3, 3, 3))
sketch13.addConstraint(Sketcher.Constraint("Vertical", 1, 3, 2, 3))
sketch13.addConstraint(Sketcher.Constraint("Vertical", 0, 3, 3, 3))
sketch13.addConstraint(Sketcher.Constraint("Diameter", 0, Q("0.1181 in")))
sketch13.addConstraint(Sketcher.Constraint("DistanceY", 2, 3, 1, 3, Q("7.1181 in")))
sketch13.addConstraint(Sketcher.Constraint("DistanceX", -1, 1, 0, 3, 35.061))
sketch13.addConstraint(Sketcher.Constraint("DistanceY", -1, 1, 0, 3, 73.6965))
sketch13.addConstraint(Sketcher.Constraint("DistanceX", 1, 3, -1, 1, 32.269))
pocket10 = body.newObject("PartDesign::Pocket", "Pocket009")
pocket10.Profile = sketch13
pocket10.Length = Q("1 in")

# Sketch on XY plane
sketch14 = body.newObject("Sketcher::SketchObject", "Sketch013")
sketch14.AttachmentSupport = (doc.getObject("XY_Plane"), [""])
sketch14.MapMode = "FlatFace"
sketch14.AttachmentOffset = App.Placement(V(0, 0, 6.1279016 * 25.4), App.Rotation())
sketch14.addGeometry(Part.LineSegment(V(46, 5, 0), V(-42, 5, 0)), False)
sketch14.addGeometry(Part.LineSegment(V(-42, 5, 0), V(-42, 0, 0)), False)
sketch14.addGeometry(Part.LineSegment(V(-42, 0, 0), V(46, 0, 0)), False)
sketch14.addGeometry(Part.LineSegment(V(46, 0, 0), V(46, 5, 0)), False)
sketch14.addConstraint(Sketcher.Constraint("Coincident", 0, 2, 1, 1))
sketch14.addConstraint(Sketcher.Constraint("Coincident", 1, 2, 2, 1))
sketch14.addConstraint(Sketcher.Constraint("Coincident", 2, 2, 3, 1))
sketch14.addConstraint(Sketcher.Constraint("Coincident", 3, 2, 0, 1))
sketch14.addConstraint(Sketcher.Constraint("Horizontal", 0))
sketch14.addConstraint(Sketcher.Constraint("Vertical", 1))
sketch14.addConstraint(Sketcher.Constraint("Horizontal", 2))
sketch14.addConstraint(Sketcher.Constraint("Vertical", 3))
sketch14.addConstraint(Sketcher.Constraint("PointOnObject", 1, 2, -1))
sketch14.addConstraint(Sketcher.Constraint("DistanceX", 0, 2, 0, 1, Q("3.44 in")))
sketch14.addConstraint(Sketcher.Constraint("DistanceY", 1, 2, 1, 1, Q("0.213 in")))
sketch14.addConstraint(Sketcher.Constraint("DistanceX", 0, 2, -1, 1, Q("1.6382 in")))
pad4 = body.newObject("PartDesign::Pad", "Pad003")
pad4.Profile = sketch14
pad4.Length = Q("3 in")

# Sketch on XY plane
sketch15 = body.newObject("Sketcher::SketchObject", "Sketch014")
sketch15.AttachmentSupport = (doc.getObject("XY_Plane"), [""])
sketch15.MapMode = "FlatFace"
sketch15.AttachmentOffset = App.Placement(V(0, 0, 6.0179016 * 25.4), App.Rotation())
sketch15.addGeometry(Part.LineSegment(V(52.1, 0, 0), V(52.1, 5.4, 0)), False)
sketch15.addGeometry(Part.LineSegment(V(52.1, 5.4, 0), V(45.8, 5.4, 0)), False)
sketch15.addGeometry(Part.LineSegment(V(45.8, 5.4, 0), V(45.8, 0, 0)), False)
sketch15.addGeometry(Part.LineSegment(V(45.8, 0, 0), V(52.1, 0, 0)), False)
sketch15.addGeometry(Part.Circle(V(48.9, 2.7, 0), V(0, 0, 1), 1.5), False)
sketch15.addGeometry(Part.LineSegment(V(-41.6, 0, 0), V(-41.6, 5.4, 0)), False)
sketch15.addGeometry(Part.LineSegment(V(-41.6, 5.4, 0), V(-48, 5.4, 0)), False)
sketch15.addGeometry(Part.LineSegment(V(-48, 5.4, 0), V(-48, 0, 0)), False)
sketch15.addGeometry(Part.LineSegment(V(-48, 0, 0), V(-41.6, 0, 0)), False)
sketch15.addGeometry(Part.Circle(V(-44.8, 2.7, 0), V(0, 0, 1), 1.5), False)
sketch15.addConstraint(Sketcher.Constraint("Coincident", 0, 2, 1, 1))
sketch15.addConstraint(Sketcher.Constraint("Coincident", 1, 2, 2, 1))
sketch15.addConstraint(Sketcher.Constraint("Coincident", 2, 2, 3, 1))
sketch15.addConstraint(Sketcher.Constraint("Coincident", 3, 2, 0, 1))
sketch15.addConstraint(Sketcher.Constraint("Coincident", 5, 2, 6, 1))
sketch15.addConstraint(Sketcher.Constraint("Coincident", 6, 2, 7, 1))
sketch15.addConstraint(Sketcher.Constraint("Coincident", 7, 2, 8, 1))
sketch15.addConstraint(Sketcher.Constraint("Coincident", 8, 2, 5, 1))
sketch15.addConstraint(Sketcher.Constraint("Vertical", 0))
sketch15.addConstraint(Sketcher.Constraint("Horizontal", 1))
sketch15.addConstraint(Sketcher.Constraint("Vertical", 2))
sketch15.addConstraint(Sketcher.Constraint("Horizontal", 3))
sketch15.addConstraint(Sketcher.Constraint("Vertical", 5))
sketch15.addConstraint(Sketcher.Constraint("Horizontal", 6))
sketch15.addConstraint(Sketcher.Constraint("Vertical", 7))
sketch15.addConstraint(Sketcher.Constraint("Horizontal", 8))
sketch15.addConstraint(Sketcher.Constraint("Equal", 4, 9))
sketch15.addConstraint(Sketcher.Constraint("PointOnObject", 2, 2, -1))
sketch15.addConstraint(Sketcher.Constraint("PointOnObject", 7, 2, -1))
sketch15.addConstraint(Sketcher.Constraint("Horizontal", 4, 3, 9, 3))
sketch15.addConstraint(Sketcher.Constraint("Horizontal", 1, 2, 5, 2))
sketch15.addConstraint(Sketcher.Constraint("Equal", 3, 6))
sketch15.addConstraint(Sketcher.Constraint("Diameter", 4, Q("0.1181 in")))
sketch15.addConstraint(Sketcher.Constraint("DistanceX", 1, 2, 1, 1, Q("0.25 in")))
sketch15.addConstraint(Sketcher.Constraint("DistanceY", 0, 1, 0, 2, Q("0.213 in")))
sketch15.addConstraint(Sketcher.Constraint("DistanceX", 9, 3, 4, 3, Q("3.69 in")))
sketch15.addConstraint(Sketcher.Constraint("DistanceX", 5, 2, 1, 2, Q("3.44 in")))
sketch15.addConstraint(Sketcher.Constraint("DistanceX", 4, 3, 0, 2, Q("0.125 in")))
sketch15.addConstraint(Sketcher.Constraint("DistanceX", -1, 1, 4, 3, Q("1.9268 in")))
sketch15.addConstraint(Sketcher.Constraint("DistanceY", -1, 1, 4, 3, Q("0.1065 in")))
pad5 = body.newObject("PartDesign::Pad", "Pad004")
pad5.Profile = sketch15
pad5.Length = Q("3 in")

# Sketch on XZ plane
sketch16 = body.newObject("Sketcher::SketchObject", "Sketch015")
sketch16.AttachmentSupport = (doc.getObject("XZ_Plane"), [""])
sketch16.MapMode = "FlatFace"
sketch16.AttachmentOffset = App.Placement(V(0, 0, -0.213 * 25.4), App.Rotation())
sketch16.addGeometry(Part.Circle(V(-33.8, 208.3, 0), V(0, 0, 1), 1.5), False)
sketch16.addGeometry(Part.Circle(V(-33.8, 190.5, 0), V(0, 0, 1), 1.5), False)
sketch16.addGeometry(Part.Circle(V(34.8, 190.5, 0), V(0, 0, 1), 1.5), False)
sketch16.addGeometry(Part.Circle(V(34.8, 208.3, 0), V(0, 0, 1), 1.5), False)
sketch16.addConstraint(Sketcher.Constraint("Equal", 0, 1))
sketch16.addConstraint(Sketcher.Constraint("Equal", 1, 2))
sketch16.addConstraint(Sketcher.Constraint("Equal", 2, 3))
sketch16.addConstraint(Sketcher.Constraint("Horizontal", 1, 3, 2, 3))
sketch16.addConstraint(Sketcher.Constraint("Horizontal", 0, 3, 3, 3))
sketch16.addConstraint(Sketcher.Constraint("Vertical", 0, 3, 1, 3))
sketch16.addConstraint(Sketcher.Constraint("Vertical", 2, 3, 3, 3))
sketch16.addConstraint(Sketcher.Constraint("Diameter", 0, Q("0.1181 in")))
sketch16.addConstraint(Sketcher.Constraint("DistanceY", 1, 3, 0, 3, Q("0.7 in")))
sketch16.addConstraint(Sketcher.Constraint("DistanceX", 1, 3, 2, 3, Q("2.7 in")))
sketch16.addConstraint(Sketcher.Constraint("DistanceX", 0, 3, -1, 1, 33.816))
sketch16.addConstraint(Sketcher.Constraint("DistanceY", -1, 1, 0, 3, 208.3096))
pocket11 = body.newObject("PartDesign::Pocket", "Pocket010")
pocket11.Profile = sketch16
pocket11.Length = Q("1 in")
pocket11.Reversed = True

# Sketch on XZ plane
sketch17 = body.newObject("Sketcher::SketchObject", "Sketch016")
sketch17.AttachmentSupport = (doc.getObject("XZ_Plane"), [""])
sketch17.MapMode = "FlatFace"
sketch17.AttachmentOffset = App.Placement(V(0, 0, -0.213 * 25.4), App.Rotation())
sketch17.addGeometry(Part.Circle(V(-33.8, 128, 0), V(0, 0, 1), 1.5), False)
sketch17.addGeometry(Part.Circle(V(-33.8, 110.2, 0), V(0, 0, 1), 1.5), False)
sketch17.addGeometry(Part.Circle(V(34.8, 110.3, 0), V(0, 0, 1), 1.5), False)
sketch17.addGeometry(Part.Circle(V(34.8, 128.1, 0), V(0, 0, 1), 1.5), False)
sketch17.addConstraint(Sketcher.Constraint("Equal", 0, 1))
sketch17.addConstraint(Sketcher.Constraint("Equal", 1, 2))
sketch17.addConstraint(Sketcher.Constraint("Equal", 2, 3))
sketch17.addConstraint(Sketcher.Constraint("Vertical", 0, 3, 1, 3))
sketch17.addConstraint(Sketcher.Constraint("Vertical", 2, 3, 3, 3))
sketch17.addConstraint(Sketcher.Constraint("Diameter", 0, Q("0.1181 in")))
sketch17.addConstraint(Sketcher.Constraint("DistanceY", 1, 3, 0, 3, Q("0.7 in")))
sketch17.addConstraint(Sketcher.Constraint("DistanceX", 1, 3, 2, 3, Q("2.7 in")))
sketch17.addConstraint(Sketcher.Constraint("DistanceY", 2, 3, 3, 3, Q("0.7 in")))
sketch17.addConstraint(Sketcher.Constraint("DistanceY", -1, 1, 0, 3, Q("5.0385 in")))
sketch17.addConstraint(Sketcher.Constraint("DistanceY", -1, 1, 2, 3, Q("4.3429 in")))
sketch17.addConstraint(Sketcher.Constraint("DistanceX", 0, 3, -1, 1, 33.816))
pad6 = body.newObject("PartDesign::Pad", "Pad005")
pad6.Profile = sketch17
pad6.Length = Q("0.213 in")

# Sketch on XZ plane
sketch18 = body.newObject("Sketcher::SketchObject", "Sketch017")
sketch18.AttachmentSupport = (doc.getObject("XZ_Plane"), [""])
sketch18.MapMode = "FlatFace"
sketch18.AttachmentOffset = App.Placement(V(0, 0, -0.213 * 25.4), App.Rotation())
sketch18.addGeometry(Part.Circle(V(-6.6, -134.1, 0), V(0, 0, 1), 1.5), False)
sketch18.addGeometry(Part.Circle(V(21.2, -134.1, 0), V(0, 0, 1), 1.5), False)
sketch18.addConstraint(Sketcher.Constraint("Equal", 0, 1))
sketch18.addConstraint(Sketcher.Constraint("Horizontal", 0, 3, 1, 3))
sketch18.addConstraint(Sketcher.Constraint("Diameter", 0, Q("0.1181 in")))
sketch18.addConstraint(Sketcher.Constraint("DistanceX", 0, 3, 1, 3, Q("1.098 in")))
sketch18.addConstraint(Sketcher.Constraint("DistanceY", 0, 3, -1, 1, Q("5.2781 in")))
sketch18.addConstraint(Sketcher.Constraint("DistanceX", 0, 3, -1, 1, 6.6492))
pocket12 = body.newObject("PartDesign::Pocket", "Pocket011")
pocket12.Profile = sketch18
pocket12.Length = Q("0.213 in")
pocket12.Reversed = True

# Sketch on XZ plane
sketch19 = body.newObject("Sketcher::SketchObject", "Sketch018")
sketch19.AttachmentSupport = (doc.getObject("XZ_Plane"), [""])
sketch19.MapMode = "FlatFace"
sketch19.AttachmentOffset = App.Placement(V(0, 0, -0.213 * 25.4), App.Rotation())
sketch19.addGeometry(Part.LineSegment(V(35.2, -131.8, 0), V(42.3, -131.8, 0)), False)
sketch19.addGeometry(Part.LineSegment(V(42.3, -131.8, 0), V(42.3, -136.3, 0)), False)
sketch19.addGeometry(Part.LineSegment(V(42.3, -136.3, 0), V(35.2, -136.3, 0)), False)
sketch19.addGeometry(Part.LineSegment(V(35.2, -136.3, 0), V(35.2, -131.8, 0)), False)
sketch19.addGeometry(Part.LineSegment(V(7.1, -131.2, 0), V(14, -131.2, 0)), False)
sketch19.addGeometry(Part.LineSegment(V(14, -131.2, 0), V(14, -137.8, 0)), False)
sketch19.addGeometry(Part.LineSegment(V(14, -137.8, 0), V(7.1, -137.8, 0)), False)
sketch19.addGeometry(Part.LineSegment(V(7.1, -137.8, 0), V(7.1, -131.2, 0)), False)
sketch19.addGeometry(Part.LineSegment(V(36.9, -68.2, 0), V(47.4, -68.2, 0)), False)
sketch19.addGeometry(Part.LineSegment(V(47.4, -68.2, 0), V(47.4, -78, 0)), False)
sketch19.addGeometry(Part.LineSegment(V(47.4, -78, 0), V(36.9, -78, 0)), False)
sketch19.addGeometry(Part.LineSegment(V(36.9, -78, 0), V(36.9, -68.2, 0)), False)
sketch19.addConstraint(Sketcher.Constraint("Coincident", 0, 2, 1, 1))
sketch19.addConstraint(Sketcher.Constraint("Coincident", 1, 2, 2, 1))
sketch19.addConstraint(Sketcher.Constraint("Coincident", 2, 2, 3, 1))
sketch19.addConstraint(Sketcher.Constraint("Coincident", 3, 2, 0, 1))
sketch19.addConstraint(Sketcher.Constraint("Coincident", 4, 2, 5, 1))
sketch19.addConstraint(Sketcher.Constraint("Coincident", 5, 2, 6, 1))
sketch19.addConstraint(Sketcher.Constraint("Coincident", 6, 2, 7, 1))
sketch19.addConstraint(Sketcher.Constraint("Coincident", 7, 2, 4, 1))
sketch19.addConstraint(Sketcher.Constraint("Coincident", 8, 2, 9, 1))
sketch19.addConstraint(Sketcher.Constraint("Coincident", 9, 2, 10, 1))
sketch19.addConstraint(Sketcher.Constraint("Coincident", 10, 2, 11, 1))
sketch19.addConstraint(Sketcher.Constraint("Coincident", 11, 2, 8, 1))
sketch19.addConstraint(Sketcher.Constraint("Horizontal", 0))
sketch19.addConstraint(Sketcher.Constraint("Vertical", 1))
sketch19.addConstraint(Sketcher.Constraint("Horizontal", 2))
sketch19.addConstraint(Sketcher.Constraint("Vertical", 3))
sketch19.addConstraint(Sketcher.Constraint("Horizontal", 4))
sketch19.addConstraint(Sketcher.Constraint("Vertical", 5))
sketch19.addConstraint(Sketcher.Constraint("Horizontal", 6))
sketch19.addConstraint(Sketcher.Constraint("Vertical", 7))
sketch19.addConstraint(Sketcher.Constraint("Horizontal", 8))
sketch19.addConstraint(Sketcher.Constraint("Vertical", 9))
sketch19.addConstraint(Sketcher.Constraint("Horizontal", 10))
sketch19.addConstraint(Sketcher.Constraint("Vertical", 11))
sketch19.addConstraint(Sketcher.Constraint("DistanceX", 8, 1, 8, 2, Q("0.4145 in")))
sketch19.addConstraint(Sketcher.Constraint("DistanceY", 9, 2, 9, 1, Q("0.3877 in")))
sketch19.addConstraint(Sketcher.Constraint("DistanceX", 0, 1, 0, 2, 7.1038))
sketch19.addConstraint(Sketcher.Constraint("DistanceX", 4, 1, 4, 2, 6.8818))
sketch19.addConstraint(Sketcher.Constraint("DistanceY", 1, 2, 1, 1, 4.514))
sketch19.addConstraint(Sketcher.Constraint("DistanceY", 5, 2, 5, 1, Q("0.2592913 in")))
sketch19.addConstraint(Sketcher.Constraint("DistanceX", -1, 1, 2, 2, Q("1.3868 in")))
sketch19.addConstraint(Sketcher.Constraint("DistanceX", -1, 1, 4, 2, Q("0.5507 in")))
sketch19.addConstraint(Sketcher.Constraint("DistanceY", 0, 2, 8, 2, Q("2.5061 in")))
sketch19.addConstraint(Sketcher.Constraint("DistanceY", 0, 2, -1, 1, 131.8326))
sketch19.addConstraint(Sketcher.Constraint("DistanceY", 4, 2, -1, 1, 131.1666))
sketch19.addConstraint(Sketcher.Constraint("DistanceX", -1, 1, 8, 2, 47.4407))
pad7 = body.newObject("PartDesign::Pad", "Pad006")
pad7.Profile = sketch19
pad7.Length = Q("0.213 in")

# Sketch on XZ plane
sketch20 = body.newObject("Sketcher::SketchObject", "Sketch019")
sketch20.AttachmentSupport = (doc.getObject("XZ_Plane"), [""])
sketch20.MapMode = "FlatFace"
sketch20.addGeometry(Part.LineSegment(V(-28.9, 174.1, 0), V(-28.9, 170.3, 0)), False)
sketch20.addGeometry(Part.LineSegment(V(-28.9, 170.3, 0), V(31.8, 170.3, 0)), False)
sketch20.addGeometry(Part.LineSegment(V(31.8, 170.3, 0), V(31.8, 174.1, 0)), False)
sketch20.addGeometry(Part.LineSegment(V(31.8, 174.1, 0), V(-28.9, 174.1, 0)), False)
sketch20.addGeometry(Part.LineSegment(V(31.8, 117.9, 0), V(-28.9, 117.9, 0)), False)
sketch20.addGeometry(Part.LineSegment(V(-28.9, 117.9, 0), V(-28.9, 114.1, 0)), False)
sketch20.addGeometry(Part.LineSegment(V(-28.9, 114.1, 0), V(31.8, 114.1, 0)), False)
sketch20.addGeometry(Part.LineSegment(V(31.8, 114.1, 0), V(31.8, 117.9, 0)), False)
sketch20.addConstraint(Sketcher.Constraint("Coincident", 0, 2, 1, 1))
sketch20.addConstraint(Sketcher.Constraint("Coincident", 1, 2, 2, 1))
sketch20.addConstraint(Sketcher.Constraint("Coincident", 2, 2, 3, 1))
sketch20.addConstraint(Sketcher.Constraint("Coincident", 3, 2, 0, 1))
sketch20.addConstraint(Sketcher.Constraint("Coincident", 4, 2, 5, 1))
sketch20.addConstraint(Sketcher.Constraint("Coincident", 5, 2, 6, 1))
sketch20.addConstraint(Sketcher.Constraint("Coincident", 6, 2, 7, 1))
sketch20.addConstraint(Sketcher.Constraint("Coincident", 7, 2, 4, 1))
sketch20.addConstraint(Sketcher.Constraint("Vertical", 0))
sketch20.addConstraint(Sketcher.Constraint("Horizontal", 1))
sketch20.addConstraint(Sketcher.Constraint("Vertical", 2))
sketch20.addConstraint(Sketcher.Constraint("Horizontal", 3))
sketch20.addConstraint(Sketcher.Constraint("Horizontal", 4))
sketch20.addConstraint(Sketcher.Constraint("Vertical", 5))
sketch20.addConstraint(Sketcher.Constraint("Horizontal", 6))
sketch20.addConstraint(Sketcher.Constraint("Vertical", 7))
sketch20.addConstraint(Sketcher.Constraint("Vertical", 3, 2, 4, 2))
sketch20.addConstraint(Sketcher.Constraint("Vertical", 2, 2, 6, 2))
sketch20.addConstraint(Sketcher.Constraint("Equal", 2, 5))
sketch20.addConstraint(Sketcher.Constraint("DistanceY", 0, 2, 0, 1, Q("0.15 in")))
sketch20.addConstraint(Sketcher.Constraint("DistanceX", 1, 1, 1, 2, Q("2.3906299 in")))
sketch20.addConstraint(Sketcher.Constraint("DistanceY", -1, 1, 0, 2, Q("6.7034 in")))
sketch20.addConstraint(Sketcher.Constraint("DistanceX", -1, 1, 1, 2, Q("1.2539 in")))
sketch20.addConstraint(Sketcher.Constraint("DistanceY", -1, 1, 4, 2, 117.8628))
pocket13 = body.newObject("PartDesign::Pocket", "Pocket012")
pocket13.Profile = sketch20
pocket13.Length = Q("0.213 in")

# Sketch on XZ plane
sketch21 = body.newObject("Sketcher::SketchObject", "Sketch020")
sketch21.AttachmentSupport = (doc.getObject("XZ_Plane"), [""])
sketch21.MapMode = "FlatFace"
sketch21.AttachmentOffset = App.Placement(V(0, 0, -0.213 * 25.4), App.Rotation())
sketch21.addGeometry(Part.LineSegment(V(29, -199, 0), V(29, -254, 0)), False)
sketch21.addGeometry(Part.LineSegment(V(29, -254, 0), V(-25, -254, 0)), False)
sketch21.addGeometry(Part.LineSegment(V(-25, -254, 0), V(-25, -199, 0)), False)
sketch21.addGeometry(Part.LineSegment(V(-25, -199, 0), V(29, -199, 0)), False)
sketch21.addConstraint(Sketcher.Constraint("Coincident", 0, 2, 1, 1))
sketch21.addConstraint(Sketcher.Constraint("Coincident", 1, 2, 2, 1))
sketch21.addConstraint(Sketcher.Constraint("Coincident", 2, 2, 3, 1))
sketch21.addConstraint(Sketcher.Constraint("Coincident", 3, 2, 0, 1))
sketch21.addConstraint(Sketcher.Constraint("Vertical", 0))
sketch21.addConstraint(Sketcher.Constraint("Horizontal", 1))
sketch21.addConstraint(Sketcher.Constraint("Vertical", 2))
sketch21.addConstraint(Sketcher.Constraint("Horizontal", 3))
sketch21.addConstraint(Sketcher.Constraint("DistanceX", 1, 2, 1, 1, Q("2.142 in")))
sketch21.addConstraint(Sketcher.Constraint("DistanceY", 0, 2, 0, 1, 55.9023))
sketch21.addConstraint(Sketcher.Constraint("DistanceX", -1, 1, 0, 2, Q("1.1528 in")))
sketch21.addConstraint(Sketcher.Constraint("DistanceY", 0, 2, -1, 1, Q("10.0191 in")))
pocket14 = body.newObject("PartDesign::Pocket", "Pocket013")
pocket14.Profile = sketch21
pocket14.Length = Q("0.213 in")
pocket14.Reversed = True
doc.recompute()

fillet = body.newObject("PartDesign::Fillet", "Fillet")
fillet.Base = (pocket14, edges_at(pocket14, [(29.281, 2.705, -198.583), (-25.126, 2.705, -198.583)]))
fillet.Radius = Q("0.125 in")

doc.recompute()
